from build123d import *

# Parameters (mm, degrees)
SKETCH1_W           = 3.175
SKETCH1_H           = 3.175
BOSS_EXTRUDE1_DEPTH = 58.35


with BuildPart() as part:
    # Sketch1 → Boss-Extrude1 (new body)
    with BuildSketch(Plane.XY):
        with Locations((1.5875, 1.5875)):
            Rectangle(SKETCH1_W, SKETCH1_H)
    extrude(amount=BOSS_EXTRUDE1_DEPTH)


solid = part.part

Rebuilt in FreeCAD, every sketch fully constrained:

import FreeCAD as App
import Part
import Sketcher
Q = App.Units.Quantity


def add_polygon(sketch, points):
    """Adds a closed chain of lines whose ends are joined by coincident constraints."""
    first, n = sketch.GeometryCount, len(points)
    for a, b in zip(points, points[1:] + points[:1]):
        sketch.addGeometry(Part.LineSegment(App.Vector(*a, 0), App.Vector(*b, 0)), False)
    for i in range(n):
        sketch.addConstraint(Sketcher.Constraint("Coincident", first + i, 2, first + (i + 1) % n, 1))

doc = App.newDocument("Part")
body = doc.addObject("PartDesign::Body", "Body")

# Sketch on XY plane
sketch1 = doc.addObject("Sketcher::SketchObject", "Sketch")
body.addObject(sketch1)
sketch1.AttachmentSupport = (doc.XY_Plane, [""])
sketch1.MapMode = "FlatFace"
add_polygon(sketch1, [(0, 3.2), (0, 0), (3.2, 0), (3.2, 3.2)])  # lines 0-3
sketch1.addConstraint(Sketcher.Constraint("Vertical", 0))
sketch1.addConstraint(Sketcher.Constraint("Horizontal", 1))
sketch1.addConstraint(Sketcher.Constraint("Vertical", 2))
sketch1.addConstraint(Sketcher.Constraint("Horizontal", 3))
sketch1.addConstraint(Sketcher.Constraint("Coincident", 0, 2, -1, 1))
sketch1.addConstraint(Sketcher.Constraint("Equal", 3, 0))
sketch1.addConstraint(Sketcher.Constraint("DistanceX", 1, 1, 1, 2, Q("0.125 in")))
pad1 = doc.addObject("PartDesign::Pad", "Pad")
body.addObject(pad1)
pad1.Profile = sketch1
pad1.Length = 58.35

doc.recompute()
